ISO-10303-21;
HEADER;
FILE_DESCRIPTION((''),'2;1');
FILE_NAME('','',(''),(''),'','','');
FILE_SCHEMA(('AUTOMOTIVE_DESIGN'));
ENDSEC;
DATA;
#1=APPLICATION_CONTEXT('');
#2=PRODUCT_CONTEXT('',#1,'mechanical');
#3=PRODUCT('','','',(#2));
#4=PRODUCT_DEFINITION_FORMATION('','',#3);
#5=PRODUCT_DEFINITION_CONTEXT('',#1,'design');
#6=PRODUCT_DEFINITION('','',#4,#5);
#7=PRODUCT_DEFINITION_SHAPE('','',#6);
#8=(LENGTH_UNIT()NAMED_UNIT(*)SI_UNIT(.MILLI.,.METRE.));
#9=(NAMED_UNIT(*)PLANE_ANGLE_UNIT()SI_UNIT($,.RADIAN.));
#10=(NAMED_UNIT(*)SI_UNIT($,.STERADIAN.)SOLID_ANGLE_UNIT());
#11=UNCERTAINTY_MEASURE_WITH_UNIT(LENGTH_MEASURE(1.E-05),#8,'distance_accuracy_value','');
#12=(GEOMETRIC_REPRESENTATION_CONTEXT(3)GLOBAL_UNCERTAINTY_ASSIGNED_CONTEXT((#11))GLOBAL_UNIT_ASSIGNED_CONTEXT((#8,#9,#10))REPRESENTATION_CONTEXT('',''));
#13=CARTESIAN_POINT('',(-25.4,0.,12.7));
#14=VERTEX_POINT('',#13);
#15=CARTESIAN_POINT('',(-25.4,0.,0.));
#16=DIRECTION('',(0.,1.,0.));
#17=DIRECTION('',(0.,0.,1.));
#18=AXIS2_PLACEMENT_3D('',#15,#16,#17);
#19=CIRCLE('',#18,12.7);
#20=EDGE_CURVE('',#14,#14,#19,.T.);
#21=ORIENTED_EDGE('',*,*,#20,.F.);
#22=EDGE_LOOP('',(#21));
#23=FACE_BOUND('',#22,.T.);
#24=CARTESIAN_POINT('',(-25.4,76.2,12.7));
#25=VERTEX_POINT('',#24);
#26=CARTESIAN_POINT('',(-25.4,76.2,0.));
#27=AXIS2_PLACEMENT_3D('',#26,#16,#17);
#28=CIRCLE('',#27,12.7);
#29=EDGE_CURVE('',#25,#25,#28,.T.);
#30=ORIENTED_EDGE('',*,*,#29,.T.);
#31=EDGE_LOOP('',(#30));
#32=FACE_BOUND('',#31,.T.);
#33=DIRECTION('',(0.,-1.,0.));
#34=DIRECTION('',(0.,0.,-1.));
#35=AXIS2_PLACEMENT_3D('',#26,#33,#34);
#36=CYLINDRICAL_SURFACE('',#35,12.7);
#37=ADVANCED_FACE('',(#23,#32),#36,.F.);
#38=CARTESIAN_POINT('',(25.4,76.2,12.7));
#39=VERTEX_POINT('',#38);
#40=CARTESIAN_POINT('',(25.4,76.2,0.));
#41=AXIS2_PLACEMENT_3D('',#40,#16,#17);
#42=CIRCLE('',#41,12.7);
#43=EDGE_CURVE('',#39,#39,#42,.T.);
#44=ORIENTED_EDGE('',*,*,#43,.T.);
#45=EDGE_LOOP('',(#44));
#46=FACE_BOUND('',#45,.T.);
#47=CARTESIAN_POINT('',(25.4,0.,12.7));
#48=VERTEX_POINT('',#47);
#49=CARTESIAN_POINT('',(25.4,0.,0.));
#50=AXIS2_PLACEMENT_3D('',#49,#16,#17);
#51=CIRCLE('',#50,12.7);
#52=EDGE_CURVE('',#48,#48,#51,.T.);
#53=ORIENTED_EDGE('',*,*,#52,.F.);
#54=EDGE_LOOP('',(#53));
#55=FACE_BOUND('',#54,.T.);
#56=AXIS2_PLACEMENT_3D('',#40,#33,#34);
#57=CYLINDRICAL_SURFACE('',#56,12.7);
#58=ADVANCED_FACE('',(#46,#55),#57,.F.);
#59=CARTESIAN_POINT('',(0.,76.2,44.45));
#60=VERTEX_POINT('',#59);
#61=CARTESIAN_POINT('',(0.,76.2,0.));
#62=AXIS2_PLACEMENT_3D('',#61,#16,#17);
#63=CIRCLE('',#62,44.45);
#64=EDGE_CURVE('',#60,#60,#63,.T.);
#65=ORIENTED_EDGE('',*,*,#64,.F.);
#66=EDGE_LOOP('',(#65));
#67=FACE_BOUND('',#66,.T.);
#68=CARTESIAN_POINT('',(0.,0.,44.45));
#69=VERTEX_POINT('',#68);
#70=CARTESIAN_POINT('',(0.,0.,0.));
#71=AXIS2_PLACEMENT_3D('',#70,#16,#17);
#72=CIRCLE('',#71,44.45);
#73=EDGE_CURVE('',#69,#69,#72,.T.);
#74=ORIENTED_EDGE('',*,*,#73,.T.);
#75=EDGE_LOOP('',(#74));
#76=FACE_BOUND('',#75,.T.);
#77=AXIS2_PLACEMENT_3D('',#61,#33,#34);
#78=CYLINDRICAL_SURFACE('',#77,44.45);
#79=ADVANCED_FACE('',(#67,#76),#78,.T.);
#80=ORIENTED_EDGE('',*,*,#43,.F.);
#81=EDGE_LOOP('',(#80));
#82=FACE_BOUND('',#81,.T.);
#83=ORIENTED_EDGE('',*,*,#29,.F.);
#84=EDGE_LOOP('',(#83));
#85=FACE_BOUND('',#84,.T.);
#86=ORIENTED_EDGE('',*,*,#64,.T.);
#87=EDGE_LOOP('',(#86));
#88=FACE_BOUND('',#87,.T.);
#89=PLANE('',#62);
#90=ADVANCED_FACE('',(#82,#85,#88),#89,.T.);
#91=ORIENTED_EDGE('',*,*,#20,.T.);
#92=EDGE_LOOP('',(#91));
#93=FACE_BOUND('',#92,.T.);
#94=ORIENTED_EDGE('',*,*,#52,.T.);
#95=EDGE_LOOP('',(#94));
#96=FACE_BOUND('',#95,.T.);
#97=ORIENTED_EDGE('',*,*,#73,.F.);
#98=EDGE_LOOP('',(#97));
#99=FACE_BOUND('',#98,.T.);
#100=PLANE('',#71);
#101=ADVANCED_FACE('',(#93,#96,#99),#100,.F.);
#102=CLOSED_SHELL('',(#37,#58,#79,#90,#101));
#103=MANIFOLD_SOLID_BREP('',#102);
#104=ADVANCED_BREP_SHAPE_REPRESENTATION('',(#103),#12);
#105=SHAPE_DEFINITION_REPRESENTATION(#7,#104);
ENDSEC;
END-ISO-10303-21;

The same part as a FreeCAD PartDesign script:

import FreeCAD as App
import Part
import Sketcher

V = App.Vector
Q = App.Units.Quantity

doc = App.newDocument("Part")
params = doc.addObject("Spreadsheet::Sheet", "Params")
for row, (alias, value) in enumerate([
    ("sketch1_diameter", "1 in"),
    ("sketch1_diameter2", "3.5 in"),
    ("pad1_length", "3 in"),
], start=1):
    params.set(f"A{row}", alias)
    params.set(f"B{row}", "=" + value)
    params.setAlias(f"B{row}", alias)

body = doc.addObject("PartDesign::Body", "Body")

# Sketch on XZ plane
sketch1 = body.newObject("Sketcher::SketchObject", "Sketch")
sketch1.AttachmentSupport = (doc.getObject("XZ_Plane"), [""])
sketch1.MapMode = "FlatFace"
sketch1.addGeometry(Part.Circle(V(0, 0, 0), V(0, 0, 1), 44), False)
sketch1.addGeometry(Part.Circle(V(-25, 0, 0), V(0, 0, 1), 13), False)
sketch1.addGeometry(Part.Circle(V(25, 0, 0), V(0, 0, 1), 13), False)
sketch1.addConstraint(Sketcher.Constraint("Coincident", 0, 3, -1, 1))
sketch1.addConstraint(Sketcher.Constraint("Equal", 1, 2))
sketch1.addConstraint(Sketcher.Constraint("Symmetric", 1, 3, 2, 3, -1, 1))
sketch1.addConstraint(Sketcher.Constraint("PointOnObject", 1, 3, -1))
sketch1.addConstraint(Sketcher.Constraint("Diameter", 1, Q("1 in")))
sketch1.addConstraint(Sketcher.Constraint("Diameter", 0, Q("3.5 in")))
sketch1.addConstraint(Sketcher.Constraint("DistanceX", 1, 3, -1, 1, Q("1 in")))
sketch1.setExpression("Constraints[4]", "Params.sketch1_diameter")
sketch1.setExpression("Constraints[5]", "Params.sketch1_diameter2")
pad1 = body.newObject("PartDesign::Pad", "Pad")
pad1.Profile = sketch1
pad1.setExpression("Length", "Params.pad1_length")
pad1.Reversed = True

doc.recompute()
